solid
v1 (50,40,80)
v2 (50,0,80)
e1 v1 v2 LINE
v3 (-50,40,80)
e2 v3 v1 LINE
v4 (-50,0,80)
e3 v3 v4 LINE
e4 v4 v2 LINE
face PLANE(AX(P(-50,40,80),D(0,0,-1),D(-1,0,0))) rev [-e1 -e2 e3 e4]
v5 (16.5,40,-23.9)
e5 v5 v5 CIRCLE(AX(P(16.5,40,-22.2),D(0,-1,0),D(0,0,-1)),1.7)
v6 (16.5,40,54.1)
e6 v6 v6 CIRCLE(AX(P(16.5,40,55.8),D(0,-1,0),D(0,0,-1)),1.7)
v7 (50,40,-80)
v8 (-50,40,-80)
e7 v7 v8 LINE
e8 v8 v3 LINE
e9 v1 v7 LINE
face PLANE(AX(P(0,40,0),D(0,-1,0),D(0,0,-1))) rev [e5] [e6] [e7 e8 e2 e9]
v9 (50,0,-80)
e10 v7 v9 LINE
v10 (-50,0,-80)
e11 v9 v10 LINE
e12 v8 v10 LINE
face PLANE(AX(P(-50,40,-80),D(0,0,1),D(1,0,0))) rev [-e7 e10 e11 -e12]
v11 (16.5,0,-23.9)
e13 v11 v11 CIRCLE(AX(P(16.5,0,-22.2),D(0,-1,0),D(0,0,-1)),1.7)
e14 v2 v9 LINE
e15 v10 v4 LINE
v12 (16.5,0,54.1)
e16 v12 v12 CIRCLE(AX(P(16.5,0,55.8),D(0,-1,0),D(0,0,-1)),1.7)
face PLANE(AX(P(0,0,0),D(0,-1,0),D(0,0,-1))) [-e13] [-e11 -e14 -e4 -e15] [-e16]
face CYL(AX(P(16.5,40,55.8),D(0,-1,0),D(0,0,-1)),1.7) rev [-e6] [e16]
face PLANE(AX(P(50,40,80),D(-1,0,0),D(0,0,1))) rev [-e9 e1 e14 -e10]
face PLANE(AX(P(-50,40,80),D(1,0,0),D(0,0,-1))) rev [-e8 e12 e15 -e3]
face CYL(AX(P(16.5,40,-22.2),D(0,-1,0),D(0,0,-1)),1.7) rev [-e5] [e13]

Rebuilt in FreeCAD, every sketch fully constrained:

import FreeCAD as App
import Part
import Sketcher


def add_polygon(sketch, points):
    """Adds a closed chain of lines whose ends are joined by coincident constraints."""
    first, n = sketch.GeometryCount, len(points)
    for a, b in zip(points, points[1:] + points[:1]):
        sketch.addGeometry(Part.LineSegment(App.Vector(*a, 0), App.Vector(*b, 0)), False)
    for i in range(n):
        sketch.addConstraint(Sketcher.Constraint("Coincident", first + i, 2, first + (i + 1) % n, 1))

doc = App.newDocument("Part")
body = doc.addObject("PartDesign::Body", "Body")

# Sketch on XZ plane
sketch1 = body.newObject("Sketcher::SketchObject", "Sketch")
sketch1.AttachmentSupport = (doc.getObject("XZ_Plane"), [""])
sketch1.MapMode = "FlatFace"
add_polygon(sketch1, [(-50, -80), (-50, 80), (50, 80), (50, -80)])  # lines 0-3
sketch1.addConstraint(Sketcher.Constraint("Vertical", 0))
sketch1.addConstraint(Sketcher.Constraint("Horizontal", 1))
sketch1.addConstraint(Sketcher.Constraint("Vertical", 2))
sketch1.addConstraint(Sketcher.Constraint("Horizontal", 3))
sketch1.addConstraint(Sketcher.Constraint("Symmetric", 0, 2, 2, 2, -1, 1))
sketch1.addConstraint(Sketcher.Constraint("DistanceX", 1, 1, 1, 2, 100.0))
sketch1.addConstraint(Sketcher.Constraint("DistanceY", 0, 1, 0, 2, 160.0))
pad1 = body.newObject("PartDesign::Pad", "Pad")
pad1.Profile = sketch1
pad1.Length = 40
pad1.Reversed = True

# Sketch on XZ plane
sketch2 = body.newObject("Sketcher::SketchObject", "Sketch001")
sketch2.AttachmentSupport = (doc.getObject("XZ_Plane"), [""])
sketch2.MapMode = "FlatFace"
sketch2.addGeometry(Part.Circle(App.Vector(16.5, 55.8, 0), App.Vector(0, 0, 1), 1.7), False)
sketch2.addGeometry(Part.Circle(App.Vector(16.5, -22.2, 0), App.Vector(0, 0, 1), 1.7), False)
sketch2.addConstraint(Sketcher.Constraint("Equal", 0, 1))
sketch2.addConstraint(Sketcher.Constraint("Vertical", 0, 3, 1, 3))
sketch2.addConstraint(Sketcher.Constraint("Diameter", 0, 3.4))
sketch2.addConstraint(Sketcher.Constraint("DistanceY", 1, 3, 0, 3, 78.0))
sketch2.addConstraint(Sketcher.Constraint("DistanceX", -1, 1, 0, 3, 16.5))
sketch2.addConstraint(Sketcher.Constraint("DistanceY", -1, 1, 0, 3, 55.8))
pocket1 = body.newObject("PartDesign::Pocket", "Pocket")
pocket1.Profile = sketch2
pocket1.Type = "ThroughAll"

doc.recompute()
